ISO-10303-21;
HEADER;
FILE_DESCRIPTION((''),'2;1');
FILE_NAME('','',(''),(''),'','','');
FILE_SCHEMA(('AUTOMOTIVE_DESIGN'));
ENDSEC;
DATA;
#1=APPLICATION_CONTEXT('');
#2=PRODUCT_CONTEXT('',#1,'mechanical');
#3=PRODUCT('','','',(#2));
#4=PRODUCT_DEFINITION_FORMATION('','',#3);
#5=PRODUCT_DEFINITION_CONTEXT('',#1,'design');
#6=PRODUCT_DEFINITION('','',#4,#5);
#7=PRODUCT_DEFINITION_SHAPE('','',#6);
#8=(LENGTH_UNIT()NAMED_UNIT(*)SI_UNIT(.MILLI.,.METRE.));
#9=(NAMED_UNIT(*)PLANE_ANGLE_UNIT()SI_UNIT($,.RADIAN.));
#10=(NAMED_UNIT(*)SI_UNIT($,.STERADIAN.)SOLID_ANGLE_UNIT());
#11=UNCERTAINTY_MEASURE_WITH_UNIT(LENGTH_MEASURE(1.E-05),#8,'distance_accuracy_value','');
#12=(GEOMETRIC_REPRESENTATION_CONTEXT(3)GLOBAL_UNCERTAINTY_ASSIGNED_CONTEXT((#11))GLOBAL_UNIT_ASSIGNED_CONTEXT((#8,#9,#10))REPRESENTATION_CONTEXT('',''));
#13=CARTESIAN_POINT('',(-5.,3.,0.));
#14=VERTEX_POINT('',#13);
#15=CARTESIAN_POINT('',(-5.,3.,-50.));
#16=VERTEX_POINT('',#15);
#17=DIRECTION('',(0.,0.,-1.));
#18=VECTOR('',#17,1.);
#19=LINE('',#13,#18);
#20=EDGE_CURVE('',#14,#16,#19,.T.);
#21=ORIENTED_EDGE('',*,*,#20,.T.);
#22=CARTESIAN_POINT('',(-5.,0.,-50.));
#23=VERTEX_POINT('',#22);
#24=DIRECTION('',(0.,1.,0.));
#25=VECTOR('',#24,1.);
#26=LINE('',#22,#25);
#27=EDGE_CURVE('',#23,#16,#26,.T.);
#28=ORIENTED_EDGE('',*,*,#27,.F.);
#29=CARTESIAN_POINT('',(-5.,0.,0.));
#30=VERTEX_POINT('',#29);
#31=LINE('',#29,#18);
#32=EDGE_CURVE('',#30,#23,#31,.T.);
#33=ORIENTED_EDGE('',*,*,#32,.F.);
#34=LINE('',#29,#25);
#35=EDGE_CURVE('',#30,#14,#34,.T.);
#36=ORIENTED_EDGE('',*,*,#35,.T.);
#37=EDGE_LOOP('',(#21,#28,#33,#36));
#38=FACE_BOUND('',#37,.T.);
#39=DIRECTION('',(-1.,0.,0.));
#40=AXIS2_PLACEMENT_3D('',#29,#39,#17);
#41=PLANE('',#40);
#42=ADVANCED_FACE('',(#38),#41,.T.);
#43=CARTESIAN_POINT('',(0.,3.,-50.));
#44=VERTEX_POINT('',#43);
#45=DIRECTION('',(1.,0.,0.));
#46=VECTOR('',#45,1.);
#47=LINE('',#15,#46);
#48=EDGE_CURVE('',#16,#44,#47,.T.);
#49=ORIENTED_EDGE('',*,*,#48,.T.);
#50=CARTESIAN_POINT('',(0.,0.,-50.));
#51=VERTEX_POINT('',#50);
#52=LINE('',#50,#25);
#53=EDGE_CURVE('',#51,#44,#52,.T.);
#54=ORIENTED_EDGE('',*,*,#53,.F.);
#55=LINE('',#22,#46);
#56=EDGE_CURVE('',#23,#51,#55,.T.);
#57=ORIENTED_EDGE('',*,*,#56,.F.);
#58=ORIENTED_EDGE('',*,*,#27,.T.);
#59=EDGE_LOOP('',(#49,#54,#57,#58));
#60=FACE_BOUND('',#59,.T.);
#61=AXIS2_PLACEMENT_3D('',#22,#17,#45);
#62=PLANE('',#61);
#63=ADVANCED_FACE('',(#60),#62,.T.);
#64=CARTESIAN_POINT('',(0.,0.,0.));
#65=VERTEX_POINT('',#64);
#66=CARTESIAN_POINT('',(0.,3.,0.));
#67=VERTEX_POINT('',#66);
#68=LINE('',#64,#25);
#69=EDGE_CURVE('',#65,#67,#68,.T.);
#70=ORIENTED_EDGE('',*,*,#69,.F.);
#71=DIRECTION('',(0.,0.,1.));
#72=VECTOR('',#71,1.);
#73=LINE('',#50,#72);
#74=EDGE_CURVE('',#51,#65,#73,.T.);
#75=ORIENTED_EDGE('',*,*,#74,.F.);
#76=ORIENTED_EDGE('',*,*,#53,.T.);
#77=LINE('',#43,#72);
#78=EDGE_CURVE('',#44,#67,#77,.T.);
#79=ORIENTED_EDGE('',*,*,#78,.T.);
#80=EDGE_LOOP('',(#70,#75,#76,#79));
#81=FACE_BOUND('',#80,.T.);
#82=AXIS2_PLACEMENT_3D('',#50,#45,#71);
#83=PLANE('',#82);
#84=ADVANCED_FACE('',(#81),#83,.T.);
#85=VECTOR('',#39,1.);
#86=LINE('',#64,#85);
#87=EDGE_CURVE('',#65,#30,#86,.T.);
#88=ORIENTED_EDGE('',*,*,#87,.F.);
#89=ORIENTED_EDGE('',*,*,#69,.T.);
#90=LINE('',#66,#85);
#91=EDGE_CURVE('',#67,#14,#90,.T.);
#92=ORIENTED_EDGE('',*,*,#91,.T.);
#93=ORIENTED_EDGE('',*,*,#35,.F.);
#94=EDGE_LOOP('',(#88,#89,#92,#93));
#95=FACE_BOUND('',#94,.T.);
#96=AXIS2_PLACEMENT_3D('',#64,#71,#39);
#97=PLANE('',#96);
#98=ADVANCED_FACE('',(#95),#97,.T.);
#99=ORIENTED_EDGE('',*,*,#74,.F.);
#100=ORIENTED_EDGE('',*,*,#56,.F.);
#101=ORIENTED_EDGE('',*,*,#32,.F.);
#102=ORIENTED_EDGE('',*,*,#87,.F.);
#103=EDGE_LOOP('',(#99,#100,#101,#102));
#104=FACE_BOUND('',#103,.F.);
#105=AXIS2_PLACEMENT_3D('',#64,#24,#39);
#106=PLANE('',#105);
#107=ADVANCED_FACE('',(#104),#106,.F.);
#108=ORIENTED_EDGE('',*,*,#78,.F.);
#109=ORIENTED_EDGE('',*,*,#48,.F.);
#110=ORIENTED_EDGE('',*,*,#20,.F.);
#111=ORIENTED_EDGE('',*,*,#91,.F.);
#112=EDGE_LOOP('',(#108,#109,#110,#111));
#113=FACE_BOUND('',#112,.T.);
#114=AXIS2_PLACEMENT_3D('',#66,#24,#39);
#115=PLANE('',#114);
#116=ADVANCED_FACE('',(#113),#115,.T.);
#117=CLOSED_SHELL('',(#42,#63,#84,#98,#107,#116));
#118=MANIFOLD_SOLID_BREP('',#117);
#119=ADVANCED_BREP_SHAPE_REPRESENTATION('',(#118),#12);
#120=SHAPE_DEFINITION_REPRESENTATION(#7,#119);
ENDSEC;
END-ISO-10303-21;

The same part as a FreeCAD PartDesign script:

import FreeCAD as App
import Part
import Sketcher
Q = App.Units.Quantity

doc = App.newDocument("Part")
body = doc.addObject("PartDesign::Body", "Body")

# Sketch on XZ plane
sketch1 = body.newObject("Sketcher::SketchObject", "Sketch")
sketch1.AttachmentSupport = (doc.getObject("XZ_Plane"), [""])
sketch1.MapMode = "FlatFace"
sketch1.addGeometry(Part.LineSegment(App.Vector(-5, 0, 0), App.Vector(0, 0, 0)), False)
sketch1.addGeometry(Part.LineSegment(App.Vector(0, 0, 0), App.Vector(0, -50, 0)), False)
sketch1.addGeometry(Part.LineSegment(App.Vector(0, -50, 0), App.Vector(-5, -50, 0)), False)
sketch1.addGeometry(Part.LineSegment(App.Vector(-5, -50, 0), App.Vector(-5, 0, 0)), False)
sketch1.addConstraint(Sketcher.Constraint("Coincident", 0, 2, 1, 1))
sketch1.addConstraint(Sketcher.Constraint("Coincident", 1, 2, 2, 1))
sketch1.addConstraint(Sketcher.Constraint("Coincident", 2, 2, 3, 1))
sketch1.addConstraint(Sketcher.Constraint("Coincident", 3, 2, 0, 1))
sketch1.addConstraint(Sketcher.Constraint("Horizontal", 0))
sketch1.addConstraint(Sketcher.Constraint("Vertical", 1))
sketch1.addConstraint(Sketcher.Constraint("Horizontal", 2))
sketch1.addConstraint(Sketcher.Constraint("Vertical", 3))
sketch1.addConstraint(Sketcher.Constraint("Coincident", 0, 2, -1, 1))
sketch1.addConstraint(Sketcher.Constraint("DistanceX", 0, 1, 0, 2, Q("5 mm")))
sketch1.addConstraint(Sketcher.Constraint("DistanceY", 1, 2, 1, 1, Q("50 mm")))
pad1 = body.newObject("PartDesign::Pad", "Pad")
pad1.Profile = sketch1
pad1.Length = 3
pad1.Reversed = True

doc.recompute()
